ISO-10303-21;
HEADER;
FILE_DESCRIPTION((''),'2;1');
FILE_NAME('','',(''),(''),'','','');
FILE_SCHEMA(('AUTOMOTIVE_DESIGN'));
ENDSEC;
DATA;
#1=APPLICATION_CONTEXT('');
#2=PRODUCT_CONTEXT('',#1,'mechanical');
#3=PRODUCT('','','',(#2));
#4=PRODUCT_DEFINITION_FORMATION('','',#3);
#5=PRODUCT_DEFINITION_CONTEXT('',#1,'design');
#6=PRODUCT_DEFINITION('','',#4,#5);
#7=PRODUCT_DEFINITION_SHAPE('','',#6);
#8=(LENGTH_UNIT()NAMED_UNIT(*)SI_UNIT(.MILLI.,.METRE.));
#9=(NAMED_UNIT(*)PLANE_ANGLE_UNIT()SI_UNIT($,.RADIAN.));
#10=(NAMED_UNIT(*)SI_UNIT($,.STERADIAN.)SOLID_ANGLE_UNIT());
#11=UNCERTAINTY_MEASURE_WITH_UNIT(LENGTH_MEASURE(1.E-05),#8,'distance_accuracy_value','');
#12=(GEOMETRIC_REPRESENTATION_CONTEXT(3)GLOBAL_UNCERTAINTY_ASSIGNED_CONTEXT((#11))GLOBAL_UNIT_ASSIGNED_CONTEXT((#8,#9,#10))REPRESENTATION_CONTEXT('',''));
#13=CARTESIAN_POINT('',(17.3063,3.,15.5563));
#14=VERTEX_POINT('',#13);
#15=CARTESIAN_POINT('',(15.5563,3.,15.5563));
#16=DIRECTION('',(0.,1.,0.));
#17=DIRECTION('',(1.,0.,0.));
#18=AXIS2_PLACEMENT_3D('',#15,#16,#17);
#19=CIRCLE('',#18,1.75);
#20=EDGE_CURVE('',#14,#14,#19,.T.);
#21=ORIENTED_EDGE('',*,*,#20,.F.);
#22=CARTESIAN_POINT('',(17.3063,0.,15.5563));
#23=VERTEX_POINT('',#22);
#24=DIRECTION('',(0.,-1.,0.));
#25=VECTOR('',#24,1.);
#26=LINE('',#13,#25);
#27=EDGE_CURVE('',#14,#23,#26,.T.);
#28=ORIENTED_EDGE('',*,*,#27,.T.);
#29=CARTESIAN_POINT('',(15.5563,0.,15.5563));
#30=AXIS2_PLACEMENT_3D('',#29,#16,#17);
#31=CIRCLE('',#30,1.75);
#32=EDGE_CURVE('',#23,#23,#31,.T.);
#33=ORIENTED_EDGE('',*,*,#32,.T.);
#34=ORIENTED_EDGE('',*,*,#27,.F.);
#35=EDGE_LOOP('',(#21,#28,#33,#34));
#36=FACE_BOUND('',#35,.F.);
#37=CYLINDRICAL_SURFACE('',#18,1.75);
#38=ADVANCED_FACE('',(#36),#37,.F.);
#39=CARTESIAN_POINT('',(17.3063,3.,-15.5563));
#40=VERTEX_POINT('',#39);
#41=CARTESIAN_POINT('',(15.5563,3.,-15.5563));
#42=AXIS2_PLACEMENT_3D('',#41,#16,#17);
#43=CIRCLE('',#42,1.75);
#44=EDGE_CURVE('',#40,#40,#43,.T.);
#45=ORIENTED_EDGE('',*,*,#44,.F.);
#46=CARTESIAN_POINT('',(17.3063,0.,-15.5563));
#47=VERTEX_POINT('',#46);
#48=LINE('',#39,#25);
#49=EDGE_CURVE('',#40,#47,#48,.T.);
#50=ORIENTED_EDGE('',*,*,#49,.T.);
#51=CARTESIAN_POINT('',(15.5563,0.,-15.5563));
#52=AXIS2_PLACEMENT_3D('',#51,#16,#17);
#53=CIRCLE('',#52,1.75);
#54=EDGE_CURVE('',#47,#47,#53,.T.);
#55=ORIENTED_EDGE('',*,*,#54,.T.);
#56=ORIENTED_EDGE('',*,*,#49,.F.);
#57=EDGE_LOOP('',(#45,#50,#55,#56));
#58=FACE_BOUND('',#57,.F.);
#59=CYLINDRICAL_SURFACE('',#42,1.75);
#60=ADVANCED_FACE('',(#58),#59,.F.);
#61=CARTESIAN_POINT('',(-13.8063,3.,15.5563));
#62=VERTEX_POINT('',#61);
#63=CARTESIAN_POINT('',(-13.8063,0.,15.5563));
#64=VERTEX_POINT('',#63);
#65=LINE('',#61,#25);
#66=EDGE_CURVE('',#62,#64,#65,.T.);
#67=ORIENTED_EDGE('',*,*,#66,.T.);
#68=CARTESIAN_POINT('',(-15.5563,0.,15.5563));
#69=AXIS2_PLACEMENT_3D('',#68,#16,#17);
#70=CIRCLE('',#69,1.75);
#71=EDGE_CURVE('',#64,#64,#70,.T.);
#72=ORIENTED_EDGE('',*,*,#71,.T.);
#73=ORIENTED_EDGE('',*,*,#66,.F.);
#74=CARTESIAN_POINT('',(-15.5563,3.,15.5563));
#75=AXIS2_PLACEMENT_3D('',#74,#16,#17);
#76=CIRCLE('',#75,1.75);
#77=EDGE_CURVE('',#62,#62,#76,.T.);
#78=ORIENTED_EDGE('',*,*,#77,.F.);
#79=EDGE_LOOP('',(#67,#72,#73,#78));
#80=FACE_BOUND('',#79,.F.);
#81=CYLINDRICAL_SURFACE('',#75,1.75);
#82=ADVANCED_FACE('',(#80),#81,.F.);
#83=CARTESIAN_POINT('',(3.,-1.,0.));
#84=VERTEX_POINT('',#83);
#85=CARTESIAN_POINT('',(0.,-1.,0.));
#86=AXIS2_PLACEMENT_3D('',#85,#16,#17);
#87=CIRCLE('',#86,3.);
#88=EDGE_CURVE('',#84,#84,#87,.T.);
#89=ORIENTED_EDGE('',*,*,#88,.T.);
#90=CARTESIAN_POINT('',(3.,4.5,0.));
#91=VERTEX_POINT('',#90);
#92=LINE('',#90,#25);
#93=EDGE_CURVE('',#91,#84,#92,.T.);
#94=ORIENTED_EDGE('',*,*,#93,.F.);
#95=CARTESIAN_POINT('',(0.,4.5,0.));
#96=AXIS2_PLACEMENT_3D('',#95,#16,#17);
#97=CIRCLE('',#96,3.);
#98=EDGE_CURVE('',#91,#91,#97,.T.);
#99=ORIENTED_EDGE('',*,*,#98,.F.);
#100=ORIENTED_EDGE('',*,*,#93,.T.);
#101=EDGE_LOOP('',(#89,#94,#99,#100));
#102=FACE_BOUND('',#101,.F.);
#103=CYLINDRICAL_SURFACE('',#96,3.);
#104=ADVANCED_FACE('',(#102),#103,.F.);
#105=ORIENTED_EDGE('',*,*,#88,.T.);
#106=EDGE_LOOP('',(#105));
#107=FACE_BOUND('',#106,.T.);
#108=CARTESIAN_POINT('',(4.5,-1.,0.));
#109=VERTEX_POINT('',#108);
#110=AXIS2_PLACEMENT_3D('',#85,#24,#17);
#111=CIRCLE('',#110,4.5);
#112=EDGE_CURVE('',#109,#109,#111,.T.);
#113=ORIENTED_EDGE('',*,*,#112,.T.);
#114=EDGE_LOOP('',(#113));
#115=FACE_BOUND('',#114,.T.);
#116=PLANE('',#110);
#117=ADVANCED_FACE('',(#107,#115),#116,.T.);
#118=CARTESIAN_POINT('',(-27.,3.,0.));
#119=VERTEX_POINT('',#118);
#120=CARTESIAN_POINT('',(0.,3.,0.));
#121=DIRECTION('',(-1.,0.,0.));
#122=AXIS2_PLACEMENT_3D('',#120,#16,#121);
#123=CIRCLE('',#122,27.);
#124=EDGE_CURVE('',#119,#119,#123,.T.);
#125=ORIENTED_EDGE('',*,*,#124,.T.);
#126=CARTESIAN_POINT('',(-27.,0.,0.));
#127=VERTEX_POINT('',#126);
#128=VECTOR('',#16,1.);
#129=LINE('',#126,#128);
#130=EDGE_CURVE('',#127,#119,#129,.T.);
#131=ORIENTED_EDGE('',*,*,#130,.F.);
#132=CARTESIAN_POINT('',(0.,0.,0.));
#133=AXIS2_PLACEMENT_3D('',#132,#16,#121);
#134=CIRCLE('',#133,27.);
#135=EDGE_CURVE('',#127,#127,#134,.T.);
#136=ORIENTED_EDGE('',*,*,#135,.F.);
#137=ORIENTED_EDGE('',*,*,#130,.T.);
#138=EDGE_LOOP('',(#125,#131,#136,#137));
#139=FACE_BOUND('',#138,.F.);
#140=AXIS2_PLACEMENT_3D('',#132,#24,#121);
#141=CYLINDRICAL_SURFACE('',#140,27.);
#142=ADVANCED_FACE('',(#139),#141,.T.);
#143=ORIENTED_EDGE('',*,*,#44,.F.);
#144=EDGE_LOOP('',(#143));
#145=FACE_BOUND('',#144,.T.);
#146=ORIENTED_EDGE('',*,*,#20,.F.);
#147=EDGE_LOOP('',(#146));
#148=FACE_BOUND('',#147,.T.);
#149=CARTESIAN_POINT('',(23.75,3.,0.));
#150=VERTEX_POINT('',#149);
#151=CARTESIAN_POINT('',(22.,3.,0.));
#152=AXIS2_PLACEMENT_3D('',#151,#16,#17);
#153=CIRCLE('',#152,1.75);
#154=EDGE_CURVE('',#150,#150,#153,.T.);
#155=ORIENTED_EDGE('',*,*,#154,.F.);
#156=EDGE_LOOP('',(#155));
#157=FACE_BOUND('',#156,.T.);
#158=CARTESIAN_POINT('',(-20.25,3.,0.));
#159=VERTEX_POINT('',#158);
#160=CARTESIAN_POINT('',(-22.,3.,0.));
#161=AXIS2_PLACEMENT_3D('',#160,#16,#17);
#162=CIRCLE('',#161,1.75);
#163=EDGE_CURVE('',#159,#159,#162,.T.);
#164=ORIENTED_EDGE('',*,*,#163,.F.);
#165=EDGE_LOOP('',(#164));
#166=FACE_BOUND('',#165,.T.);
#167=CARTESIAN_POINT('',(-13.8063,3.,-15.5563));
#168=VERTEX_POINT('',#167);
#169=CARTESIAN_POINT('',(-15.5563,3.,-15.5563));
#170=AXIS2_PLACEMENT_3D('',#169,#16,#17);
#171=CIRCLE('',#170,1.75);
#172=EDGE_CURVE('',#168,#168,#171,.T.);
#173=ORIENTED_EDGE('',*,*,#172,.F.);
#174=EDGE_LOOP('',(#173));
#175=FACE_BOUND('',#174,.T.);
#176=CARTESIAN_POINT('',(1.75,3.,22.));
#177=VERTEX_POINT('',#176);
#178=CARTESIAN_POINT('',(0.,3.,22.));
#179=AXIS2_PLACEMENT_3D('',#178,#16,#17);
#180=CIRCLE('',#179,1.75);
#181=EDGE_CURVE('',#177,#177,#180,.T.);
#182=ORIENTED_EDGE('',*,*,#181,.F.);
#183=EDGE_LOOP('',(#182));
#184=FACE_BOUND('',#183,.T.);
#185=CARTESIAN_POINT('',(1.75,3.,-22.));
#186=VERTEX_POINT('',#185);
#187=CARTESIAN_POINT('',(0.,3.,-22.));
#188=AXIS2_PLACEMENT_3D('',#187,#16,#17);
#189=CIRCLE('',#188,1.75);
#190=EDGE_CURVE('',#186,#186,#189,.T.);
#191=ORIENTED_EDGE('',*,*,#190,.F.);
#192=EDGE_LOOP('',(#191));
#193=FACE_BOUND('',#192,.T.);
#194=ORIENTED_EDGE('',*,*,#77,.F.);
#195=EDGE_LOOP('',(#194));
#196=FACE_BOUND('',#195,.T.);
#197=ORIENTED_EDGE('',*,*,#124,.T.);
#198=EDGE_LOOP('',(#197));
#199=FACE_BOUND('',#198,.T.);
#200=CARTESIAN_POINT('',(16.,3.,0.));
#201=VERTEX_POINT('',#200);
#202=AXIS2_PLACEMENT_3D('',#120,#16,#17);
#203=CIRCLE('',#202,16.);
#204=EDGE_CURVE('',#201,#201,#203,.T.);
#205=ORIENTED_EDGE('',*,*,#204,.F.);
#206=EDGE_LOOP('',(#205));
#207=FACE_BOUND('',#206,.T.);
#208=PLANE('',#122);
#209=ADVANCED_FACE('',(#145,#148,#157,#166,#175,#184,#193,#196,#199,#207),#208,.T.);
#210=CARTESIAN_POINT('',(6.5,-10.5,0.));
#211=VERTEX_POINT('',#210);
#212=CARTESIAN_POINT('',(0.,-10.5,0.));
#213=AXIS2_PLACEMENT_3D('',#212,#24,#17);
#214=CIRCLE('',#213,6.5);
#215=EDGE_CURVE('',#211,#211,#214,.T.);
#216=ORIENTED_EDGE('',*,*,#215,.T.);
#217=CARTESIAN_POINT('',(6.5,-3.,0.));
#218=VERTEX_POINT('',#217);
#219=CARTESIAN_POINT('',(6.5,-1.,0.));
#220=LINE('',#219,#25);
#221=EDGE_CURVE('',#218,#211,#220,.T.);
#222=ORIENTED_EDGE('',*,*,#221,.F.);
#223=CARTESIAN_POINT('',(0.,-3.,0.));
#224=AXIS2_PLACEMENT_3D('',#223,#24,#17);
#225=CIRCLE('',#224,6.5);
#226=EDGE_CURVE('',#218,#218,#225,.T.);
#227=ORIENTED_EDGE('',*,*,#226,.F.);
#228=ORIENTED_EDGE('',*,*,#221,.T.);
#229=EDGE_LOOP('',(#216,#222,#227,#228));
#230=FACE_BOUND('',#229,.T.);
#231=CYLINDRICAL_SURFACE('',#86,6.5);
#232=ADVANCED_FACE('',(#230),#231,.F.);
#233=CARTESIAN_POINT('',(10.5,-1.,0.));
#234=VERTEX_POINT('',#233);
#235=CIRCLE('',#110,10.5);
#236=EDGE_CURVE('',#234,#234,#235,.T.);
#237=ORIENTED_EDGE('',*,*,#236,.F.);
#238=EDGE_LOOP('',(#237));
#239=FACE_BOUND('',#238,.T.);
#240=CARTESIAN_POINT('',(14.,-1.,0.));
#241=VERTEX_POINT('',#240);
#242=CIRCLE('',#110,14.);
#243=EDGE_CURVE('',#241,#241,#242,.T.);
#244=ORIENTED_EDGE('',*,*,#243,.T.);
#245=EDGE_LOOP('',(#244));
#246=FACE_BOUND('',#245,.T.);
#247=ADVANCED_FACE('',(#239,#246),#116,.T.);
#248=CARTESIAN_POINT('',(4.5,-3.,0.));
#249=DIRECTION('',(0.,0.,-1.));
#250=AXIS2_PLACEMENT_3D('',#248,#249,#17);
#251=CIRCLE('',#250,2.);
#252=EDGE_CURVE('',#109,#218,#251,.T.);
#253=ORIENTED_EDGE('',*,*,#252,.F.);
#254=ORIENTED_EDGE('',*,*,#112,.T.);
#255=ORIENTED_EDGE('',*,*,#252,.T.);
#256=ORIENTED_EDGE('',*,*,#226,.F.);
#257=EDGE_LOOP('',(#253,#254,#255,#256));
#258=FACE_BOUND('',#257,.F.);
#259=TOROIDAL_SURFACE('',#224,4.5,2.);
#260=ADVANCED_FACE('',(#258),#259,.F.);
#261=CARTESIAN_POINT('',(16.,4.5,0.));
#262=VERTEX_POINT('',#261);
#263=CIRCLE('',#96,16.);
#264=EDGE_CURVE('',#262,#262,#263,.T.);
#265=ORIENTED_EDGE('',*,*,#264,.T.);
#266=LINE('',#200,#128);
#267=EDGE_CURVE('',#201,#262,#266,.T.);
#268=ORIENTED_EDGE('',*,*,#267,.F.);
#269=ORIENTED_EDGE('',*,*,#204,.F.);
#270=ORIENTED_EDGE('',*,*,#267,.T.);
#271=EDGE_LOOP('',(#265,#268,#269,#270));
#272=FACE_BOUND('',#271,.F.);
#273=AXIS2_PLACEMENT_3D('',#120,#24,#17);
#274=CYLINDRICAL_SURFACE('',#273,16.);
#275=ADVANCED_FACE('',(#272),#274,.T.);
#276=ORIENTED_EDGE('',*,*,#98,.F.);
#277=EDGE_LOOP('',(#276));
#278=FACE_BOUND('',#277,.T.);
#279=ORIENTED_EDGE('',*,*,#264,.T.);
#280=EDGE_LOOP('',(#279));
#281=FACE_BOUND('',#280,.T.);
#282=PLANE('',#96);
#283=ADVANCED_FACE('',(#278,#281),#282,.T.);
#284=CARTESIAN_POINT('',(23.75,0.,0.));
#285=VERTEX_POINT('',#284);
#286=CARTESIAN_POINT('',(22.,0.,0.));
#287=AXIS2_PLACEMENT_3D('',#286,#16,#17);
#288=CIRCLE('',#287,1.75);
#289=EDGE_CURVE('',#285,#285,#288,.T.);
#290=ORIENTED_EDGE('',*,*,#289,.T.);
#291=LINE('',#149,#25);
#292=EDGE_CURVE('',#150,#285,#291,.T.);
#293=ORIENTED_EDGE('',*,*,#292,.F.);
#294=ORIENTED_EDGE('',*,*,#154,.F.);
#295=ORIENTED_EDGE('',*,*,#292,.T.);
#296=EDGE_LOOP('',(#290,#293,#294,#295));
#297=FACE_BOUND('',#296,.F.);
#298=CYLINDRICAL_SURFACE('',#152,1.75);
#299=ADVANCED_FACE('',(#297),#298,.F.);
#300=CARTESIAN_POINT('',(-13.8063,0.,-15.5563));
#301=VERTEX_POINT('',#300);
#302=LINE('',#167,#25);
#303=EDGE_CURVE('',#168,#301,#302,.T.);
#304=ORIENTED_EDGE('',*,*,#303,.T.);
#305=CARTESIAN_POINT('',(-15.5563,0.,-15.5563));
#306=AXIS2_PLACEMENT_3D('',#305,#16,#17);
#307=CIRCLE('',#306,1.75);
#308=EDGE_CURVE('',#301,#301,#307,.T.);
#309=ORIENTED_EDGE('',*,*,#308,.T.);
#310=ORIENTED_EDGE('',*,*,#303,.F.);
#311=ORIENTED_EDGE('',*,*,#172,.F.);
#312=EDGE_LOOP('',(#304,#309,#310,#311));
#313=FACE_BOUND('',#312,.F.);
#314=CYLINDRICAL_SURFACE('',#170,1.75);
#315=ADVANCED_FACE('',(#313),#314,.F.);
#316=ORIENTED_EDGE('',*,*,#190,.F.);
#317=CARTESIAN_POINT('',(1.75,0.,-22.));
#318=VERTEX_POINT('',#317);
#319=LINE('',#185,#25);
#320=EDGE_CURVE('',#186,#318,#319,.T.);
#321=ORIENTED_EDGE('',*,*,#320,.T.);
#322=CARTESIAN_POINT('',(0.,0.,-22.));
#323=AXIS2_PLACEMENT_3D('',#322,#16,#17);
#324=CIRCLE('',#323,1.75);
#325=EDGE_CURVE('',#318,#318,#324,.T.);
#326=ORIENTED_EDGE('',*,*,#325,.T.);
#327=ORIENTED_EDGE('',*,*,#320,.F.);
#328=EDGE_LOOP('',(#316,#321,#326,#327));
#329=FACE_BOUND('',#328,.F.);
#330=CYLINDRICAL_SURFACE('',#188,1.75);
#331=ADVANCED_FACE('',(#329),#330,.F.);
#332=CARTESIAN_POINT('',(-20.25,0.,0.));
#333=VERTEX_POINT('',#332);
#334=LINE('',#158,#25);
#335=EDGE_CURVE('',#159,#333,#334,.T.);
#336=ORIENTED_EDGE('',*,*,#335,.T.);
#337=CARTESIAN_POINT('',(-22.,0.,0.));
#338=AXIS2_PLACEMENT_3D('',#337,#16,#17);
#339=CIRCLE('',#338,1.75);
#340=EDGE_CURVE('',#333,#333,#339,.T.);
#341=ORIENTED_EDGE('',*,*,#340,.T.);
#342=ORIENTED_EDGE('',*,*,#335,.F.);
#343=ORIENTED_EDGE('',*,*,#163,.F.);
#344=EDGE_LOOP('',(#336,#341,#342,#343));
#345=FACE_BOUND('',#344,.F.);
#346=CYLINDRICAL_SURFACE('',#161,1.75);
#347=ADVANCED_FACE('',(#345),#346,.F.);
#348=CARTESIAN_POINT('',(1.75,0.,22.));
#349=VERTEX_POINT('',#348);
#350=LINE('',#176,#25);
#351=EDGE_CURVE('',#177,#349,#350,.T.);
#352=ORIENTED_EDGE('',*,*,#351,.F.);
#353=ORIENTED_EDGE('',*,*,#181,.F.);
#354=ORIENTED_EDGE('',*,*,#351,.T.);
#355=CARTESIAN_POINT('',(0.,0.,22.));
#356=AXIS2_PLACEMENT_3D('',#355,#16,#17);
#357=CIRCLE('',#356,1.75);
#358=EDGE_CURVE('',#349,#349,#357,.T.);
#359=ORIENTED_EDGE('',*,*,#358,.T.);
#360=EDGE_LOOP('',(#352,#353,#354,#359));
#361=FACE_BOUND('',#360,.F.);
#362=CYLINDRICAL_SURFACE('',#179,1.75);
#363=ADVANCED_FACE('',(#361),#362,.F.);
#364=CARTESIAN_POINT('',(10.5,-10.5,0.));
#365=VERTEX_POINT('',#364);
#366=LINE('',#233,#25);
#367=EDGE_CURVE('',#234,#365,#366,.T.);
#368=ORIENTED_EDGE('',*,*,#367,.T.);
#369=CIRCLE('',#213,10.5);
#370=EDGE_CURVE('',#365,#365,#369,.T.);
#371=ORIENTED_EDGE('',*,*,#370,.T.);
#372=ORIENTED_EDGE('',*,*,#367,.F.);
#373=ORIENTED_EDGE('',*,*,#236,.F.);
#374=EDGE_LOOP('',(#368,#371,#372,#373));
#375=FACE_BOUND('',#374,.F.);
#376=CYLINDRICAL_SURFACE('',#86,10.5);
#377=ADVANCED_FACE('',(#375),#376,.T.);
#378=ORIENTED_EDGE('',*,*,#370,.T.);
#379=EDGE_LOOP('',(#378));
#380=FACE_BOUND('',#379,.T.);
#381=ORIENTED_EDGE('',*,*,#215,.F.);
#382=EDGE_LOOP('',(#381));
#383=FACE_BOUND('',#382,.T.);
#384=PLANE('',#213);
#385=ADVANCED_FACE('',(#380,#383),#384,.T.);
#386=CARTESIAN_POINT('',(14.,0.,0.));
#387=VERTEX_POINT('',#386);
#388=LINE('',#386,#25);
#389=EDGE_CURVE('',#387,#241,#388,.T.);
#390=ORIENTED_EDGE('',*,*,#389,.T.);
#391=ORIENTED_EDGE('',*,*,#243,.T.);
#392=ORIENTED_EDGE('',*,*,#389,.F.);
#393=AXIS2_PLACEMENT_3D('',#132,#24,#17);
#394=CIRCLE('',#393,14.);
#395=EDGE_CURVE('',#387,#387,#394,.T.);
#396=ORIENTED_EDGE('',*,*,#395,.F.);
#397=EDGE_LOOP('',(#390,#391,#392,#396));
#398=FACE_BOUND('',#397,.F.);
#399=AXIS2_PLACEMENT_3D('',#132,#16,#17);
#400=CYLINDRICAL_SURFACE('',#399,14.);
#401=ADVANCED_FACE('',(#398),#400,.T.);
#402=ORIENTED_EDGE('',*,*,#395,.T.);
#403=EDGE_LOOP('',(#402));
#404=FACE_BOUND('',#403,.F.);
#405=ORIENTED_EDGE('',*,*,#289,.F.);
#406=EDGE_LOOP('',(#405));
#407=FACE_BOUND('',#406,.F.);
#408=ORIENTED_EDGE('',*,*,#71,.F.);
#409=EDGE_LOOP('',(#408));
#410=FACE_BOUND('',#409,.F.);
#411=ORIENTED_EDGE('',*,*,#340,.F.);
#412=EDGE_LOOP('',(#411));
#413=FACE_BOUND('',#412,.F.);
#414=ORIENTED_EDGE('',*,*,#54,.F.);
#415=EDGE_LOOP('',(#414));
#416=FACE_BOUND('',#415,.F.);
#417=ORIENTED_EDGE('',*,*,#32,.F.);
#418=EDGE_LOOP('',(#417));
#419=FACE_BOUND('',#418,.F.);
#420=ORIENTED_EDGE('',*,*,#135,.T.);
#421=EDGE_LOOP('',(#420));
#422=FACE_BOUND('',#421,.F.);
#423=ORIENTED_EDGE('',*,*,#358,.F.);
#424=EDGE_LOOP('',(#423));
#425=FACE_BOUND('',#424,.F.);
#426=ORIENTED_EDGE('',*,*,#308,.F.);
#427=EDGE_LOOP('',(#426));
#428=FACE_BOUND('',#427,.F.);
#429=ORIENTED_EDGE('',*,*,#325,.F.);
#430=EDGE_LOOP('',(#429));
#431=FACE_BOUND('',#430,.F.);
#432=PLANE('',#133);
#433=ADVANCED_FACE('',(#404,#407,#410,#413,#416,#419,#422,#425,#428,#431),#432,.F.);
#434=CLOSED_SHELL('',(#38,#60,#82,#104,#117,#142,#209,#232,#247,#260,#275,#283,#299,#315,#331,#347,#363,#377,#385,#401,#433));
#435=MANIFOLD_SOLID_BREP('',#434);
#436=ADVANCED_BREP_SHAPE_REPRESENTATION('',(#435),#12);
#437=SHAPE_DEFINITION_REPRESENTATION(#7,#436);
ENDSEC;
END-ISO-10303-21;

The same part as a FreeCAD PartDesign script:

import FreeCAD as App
import Part
import Sketcher

V = App.Vector


def edges_at(feature, points):
    """Names of the edges that pass closest to the given points."""
    edges = feature.Shape.Edges
    near = lambda p: min(range(len(edges)), key=lambda i: edges[i].distToShape(Part.Vertex(*p))[0])
    return sorted({f"Edge{near(p) + 1}" for p in points})

doc = App.newDocument("Part")
body = doc.addObject("PartDesign::Body", "Body")

# Sketch on XZ plane
sketch1 = body.newObject("Sketcher::SketchObject", "Sketch")
sketch1.AttachmentSupport = (doc.getObject("XZ_Plane"), [""])
sketch1.MapMode = "FlatFace"
sketch1.addGeometry(Part.Circle(V(0, 0, 0), V(0, 0, 1), 27), False)
sketch1.addConstraint(Sketcher.Constraint("Coincident", 0, 3, -1, 1))
sketch1.addConstraint(Sketcher.Constraint("Diameter", 0, 54.0))
pad1 = body.newObject("PartDesign::Pad", "Pad")
pad1.Profile = sketch1
pad1.Length = 3
pad1.Reversed = True

# Sketch on XZ plane
sketch2 = body.newObject("Sketcher::SketchObject", "Sketch001")
sketch2.AttachmentSupport = (doc.getObject("XZ_Plane"), [""])
sketch2.MapMode = "FlatFace"
sketch2.AttachmentOffset = App.Placement(V(0, 0, -3), App.Rotation())
sketch2.addGeometry(Part.Circle(V(0, 0, 0), V(0, 0, 1), 16), False)
sketch2.addConstraint(Sketcher.Constraint("Coincident", 0, 3, -1, 1))
sketch2.addConstraint(Sketcher.Constraint("Diameter", 0, 32.0))
pad2 = body.newObject("PartDesign::Pad", "Pad001")
pad2.Profile = sketch2
pad2.Length = 1.5
pad2.Reversed = True

# Sketch on XZ plane
sketch3 = body.newObject("Sketcher::SketchObject", "Sketch002")
sketch3.AttachmentSupport = (doc.getObject("XZ_Plane"), [""])
sketch3.MapMode = "FlatFace"
sketch3.addGeometry(Part.Circle(V(0, 0, 0), V(0, 0, 1), 14), False)
sketch3.addConstraint(Sketcher.Constraint("Coincident", 0, 3, -1, 1))
sketch3.addConstraint(Sketcher.Constraint("Diameter", 0, 28.0))
pad3 = body.newObject("PartDesign::Pad", "Pad002")
pad3.Profile = sketch3
pad3.Length = 1

# Sketch on XZ plane
sketch4 = body.newObject("Sketcher::SketchObject", "Sketch003")
sketch4.AttachmentSupport = (doc.getObject("XZ_Plane"), [""])
sketch4.MapMode = "FlatFace"
sketch4.AttachmentOffset = App.Placement(V(0, 0, -4.5), App.Rotation())
sketch4.addGeometry(Part.Circle(V(0, 0, 0), V(0, 0, 1), 3), False)
sketch4.addConstraint(Sketcher.Constraint("Coincident", 0, 3, -1, 1))
sketch4.addConstraint(Sketcher.Constraint("Diameter", 0, 6.0))
pocket1 = body.newObject("PartDesign::Pocket", "Pocket")
pocket1.Profile = sketch4
pocket1.Type = "ThroughAll"
pocket1.Reversed = True

# Sketch on XZ plane
sketch5 = body.newObject("Sketcher::SketchObject", "Sketch004")
sketch5.AttachmentSupport = (doc.getObject("XZ_Plane"), [""])
sketch5.MapMode = "FlatFace"
sketch5.AttachmentOffset = App.Placement(V(0, 0, 1), App.Rotation())
sketch5.addGeometry(Part.Circle(V(0, 0, 0), V(0, 0, 1), 10), False)
sketch5.addGeometry(Part.Circle(V(0, 0, 0), V(0, 0, 1), 6), False)
sketch5.addConstraint(Sketcher.Constraint("Coincident", 0, 3, -1, 1))
sketch5.addConstraint(Sketcher.Constraint("Coincident", 1, 3, -1, 1))
sketch5.addConstraint(Sketcher.Constraint("Diameter", 0, 21.0))
sketch5.addConstraint(Sketcher.Constraint("Diameter", 1, 13.0))
pad4 = body.newObject("PartDesign::Pad", "Pad003")
pad4.Profile = sketch5
pad4.Length = 9.5
doc.recompute()

fillet = body.newObject("PartDesign::Fillet", "Fillet")
fillet.Base = (pad4, edges_at(pad4, [(-6.5, -1, 0)]))
fillet.Radius = 2

# Sketch on XZ plane
sketch6 = body.newObject("Sketcher::SketchObject", "Sketch005")
sketch6.AttachmentSupport = (doc.getObject("XZ_Plane"), [""])
sketch6.MapMode = "FlatFace"
sketch6.AttachmentOffset = App.Placement(V(0, 0, -3), App.Rotation())
sketch6.addGeometry(Part.Circle(V(-22, 0, 0), V(0, 0, 1), 1.8), False)
sketch6.addGeometry(Part.Circle(V(-15.6, 15.6, 0), V(0, 0, 1), 1.8), False)
sketch6.addGeometry(Part.Circle(V(0, 22, 0), V(0, 0, 1), 1.8), False)
sketch6.addGeometry(Part.Circle(V(15.6, 15.6, 0), V(0, 0, 1), 1.8), False)
sketch6.addGeometry(Part.Circle(V(22, 0, 0), V(0, 0, 1), 1.8), False)
sketch6.addGeometry(Part.Circle(V(15.6, -15.6, 0), V(0, 0, 1), 1.8), False)
sketch6.addGeometry(Part.Circle(V(0, -22, 0), V(0, 0, 1), 1.8), False)
sketch6.addGeometry(Part.Circle(V(-15.6, -15.6, 0), V(0, 0, 1), 1.8), False)
sketch6.addConstraint(Sketcher.Constraint("Equal", 0, 1))
sketch6.addConstraint(Sketcher.Constraint("Equal", 1, 2))
sketch6.addConstraint(Sketcher.Constraint("Equal", 2, 3))
sketch6.addConstraint(Sketcher.Constraint("Equal", 3, 4))
sketch6.addConstraint(Sketcher.Constraint("Equal", 4, 5))
sketch6.addConstraint(Sketcher.Constraint("Equal", 5, 6))
sketch6.addConstraint(Sketcher.Constraint("Equal", 6, 7))
sketch6.addConstraint(Sketcher.Constraint("Symmetric", 0, 3, 4, 3, -1, 1))
sketch6.addConstraint(Sketcher.Constraint("Symmetric", 1, 3, 5, 3, -1, 1))
sketch6.addConstraint(Sketcher.Constraint("Symmetric", 2, 3, 6, 3, -1, 1))
sketch6.addConstraint(Sketcher.Constraint("Symmetric", 3, 3, 7, 3, -1, 1))
sketch6.addConstraint(Sketcher.Constraint("Symmetric", 1, 3, 3, 3, -2))
sketch6.addConstraint(Sketcher.Constraint("PointOnObject", 0, 3, -1))
sketch6.addConstraint(Sketcher.Constraint("PointOnObject", 2, 3, -2))
sketch6.addConstraint(Sketcher.Constraint("Diameter", 0, 3.5))
sketch6.addConstraint(Sketcher.Constraint("DistanceX", 0, 3, 4, 3, 44.0))
sketch6.addConstraint(Sketcher.Constraint("DistanceY", -1, 1, 2, 3, 22.0))
sketch6.addConstraint(Sketcher.Constraint("DistanceX", 1, 3, -1, 1, 15.5563))
sketch6.addConstraint(Sketcher.Constraint("DistanceY", -1, 1, 1, 3, 15.5563))
pocket2 = body.newObject("PartDesign::Pocket", "Pocket001")
pocket2.Profile = sketch6
pocket2.Type = "ThroughAll"
pocket2.Reversed = True

doc.recompute()
